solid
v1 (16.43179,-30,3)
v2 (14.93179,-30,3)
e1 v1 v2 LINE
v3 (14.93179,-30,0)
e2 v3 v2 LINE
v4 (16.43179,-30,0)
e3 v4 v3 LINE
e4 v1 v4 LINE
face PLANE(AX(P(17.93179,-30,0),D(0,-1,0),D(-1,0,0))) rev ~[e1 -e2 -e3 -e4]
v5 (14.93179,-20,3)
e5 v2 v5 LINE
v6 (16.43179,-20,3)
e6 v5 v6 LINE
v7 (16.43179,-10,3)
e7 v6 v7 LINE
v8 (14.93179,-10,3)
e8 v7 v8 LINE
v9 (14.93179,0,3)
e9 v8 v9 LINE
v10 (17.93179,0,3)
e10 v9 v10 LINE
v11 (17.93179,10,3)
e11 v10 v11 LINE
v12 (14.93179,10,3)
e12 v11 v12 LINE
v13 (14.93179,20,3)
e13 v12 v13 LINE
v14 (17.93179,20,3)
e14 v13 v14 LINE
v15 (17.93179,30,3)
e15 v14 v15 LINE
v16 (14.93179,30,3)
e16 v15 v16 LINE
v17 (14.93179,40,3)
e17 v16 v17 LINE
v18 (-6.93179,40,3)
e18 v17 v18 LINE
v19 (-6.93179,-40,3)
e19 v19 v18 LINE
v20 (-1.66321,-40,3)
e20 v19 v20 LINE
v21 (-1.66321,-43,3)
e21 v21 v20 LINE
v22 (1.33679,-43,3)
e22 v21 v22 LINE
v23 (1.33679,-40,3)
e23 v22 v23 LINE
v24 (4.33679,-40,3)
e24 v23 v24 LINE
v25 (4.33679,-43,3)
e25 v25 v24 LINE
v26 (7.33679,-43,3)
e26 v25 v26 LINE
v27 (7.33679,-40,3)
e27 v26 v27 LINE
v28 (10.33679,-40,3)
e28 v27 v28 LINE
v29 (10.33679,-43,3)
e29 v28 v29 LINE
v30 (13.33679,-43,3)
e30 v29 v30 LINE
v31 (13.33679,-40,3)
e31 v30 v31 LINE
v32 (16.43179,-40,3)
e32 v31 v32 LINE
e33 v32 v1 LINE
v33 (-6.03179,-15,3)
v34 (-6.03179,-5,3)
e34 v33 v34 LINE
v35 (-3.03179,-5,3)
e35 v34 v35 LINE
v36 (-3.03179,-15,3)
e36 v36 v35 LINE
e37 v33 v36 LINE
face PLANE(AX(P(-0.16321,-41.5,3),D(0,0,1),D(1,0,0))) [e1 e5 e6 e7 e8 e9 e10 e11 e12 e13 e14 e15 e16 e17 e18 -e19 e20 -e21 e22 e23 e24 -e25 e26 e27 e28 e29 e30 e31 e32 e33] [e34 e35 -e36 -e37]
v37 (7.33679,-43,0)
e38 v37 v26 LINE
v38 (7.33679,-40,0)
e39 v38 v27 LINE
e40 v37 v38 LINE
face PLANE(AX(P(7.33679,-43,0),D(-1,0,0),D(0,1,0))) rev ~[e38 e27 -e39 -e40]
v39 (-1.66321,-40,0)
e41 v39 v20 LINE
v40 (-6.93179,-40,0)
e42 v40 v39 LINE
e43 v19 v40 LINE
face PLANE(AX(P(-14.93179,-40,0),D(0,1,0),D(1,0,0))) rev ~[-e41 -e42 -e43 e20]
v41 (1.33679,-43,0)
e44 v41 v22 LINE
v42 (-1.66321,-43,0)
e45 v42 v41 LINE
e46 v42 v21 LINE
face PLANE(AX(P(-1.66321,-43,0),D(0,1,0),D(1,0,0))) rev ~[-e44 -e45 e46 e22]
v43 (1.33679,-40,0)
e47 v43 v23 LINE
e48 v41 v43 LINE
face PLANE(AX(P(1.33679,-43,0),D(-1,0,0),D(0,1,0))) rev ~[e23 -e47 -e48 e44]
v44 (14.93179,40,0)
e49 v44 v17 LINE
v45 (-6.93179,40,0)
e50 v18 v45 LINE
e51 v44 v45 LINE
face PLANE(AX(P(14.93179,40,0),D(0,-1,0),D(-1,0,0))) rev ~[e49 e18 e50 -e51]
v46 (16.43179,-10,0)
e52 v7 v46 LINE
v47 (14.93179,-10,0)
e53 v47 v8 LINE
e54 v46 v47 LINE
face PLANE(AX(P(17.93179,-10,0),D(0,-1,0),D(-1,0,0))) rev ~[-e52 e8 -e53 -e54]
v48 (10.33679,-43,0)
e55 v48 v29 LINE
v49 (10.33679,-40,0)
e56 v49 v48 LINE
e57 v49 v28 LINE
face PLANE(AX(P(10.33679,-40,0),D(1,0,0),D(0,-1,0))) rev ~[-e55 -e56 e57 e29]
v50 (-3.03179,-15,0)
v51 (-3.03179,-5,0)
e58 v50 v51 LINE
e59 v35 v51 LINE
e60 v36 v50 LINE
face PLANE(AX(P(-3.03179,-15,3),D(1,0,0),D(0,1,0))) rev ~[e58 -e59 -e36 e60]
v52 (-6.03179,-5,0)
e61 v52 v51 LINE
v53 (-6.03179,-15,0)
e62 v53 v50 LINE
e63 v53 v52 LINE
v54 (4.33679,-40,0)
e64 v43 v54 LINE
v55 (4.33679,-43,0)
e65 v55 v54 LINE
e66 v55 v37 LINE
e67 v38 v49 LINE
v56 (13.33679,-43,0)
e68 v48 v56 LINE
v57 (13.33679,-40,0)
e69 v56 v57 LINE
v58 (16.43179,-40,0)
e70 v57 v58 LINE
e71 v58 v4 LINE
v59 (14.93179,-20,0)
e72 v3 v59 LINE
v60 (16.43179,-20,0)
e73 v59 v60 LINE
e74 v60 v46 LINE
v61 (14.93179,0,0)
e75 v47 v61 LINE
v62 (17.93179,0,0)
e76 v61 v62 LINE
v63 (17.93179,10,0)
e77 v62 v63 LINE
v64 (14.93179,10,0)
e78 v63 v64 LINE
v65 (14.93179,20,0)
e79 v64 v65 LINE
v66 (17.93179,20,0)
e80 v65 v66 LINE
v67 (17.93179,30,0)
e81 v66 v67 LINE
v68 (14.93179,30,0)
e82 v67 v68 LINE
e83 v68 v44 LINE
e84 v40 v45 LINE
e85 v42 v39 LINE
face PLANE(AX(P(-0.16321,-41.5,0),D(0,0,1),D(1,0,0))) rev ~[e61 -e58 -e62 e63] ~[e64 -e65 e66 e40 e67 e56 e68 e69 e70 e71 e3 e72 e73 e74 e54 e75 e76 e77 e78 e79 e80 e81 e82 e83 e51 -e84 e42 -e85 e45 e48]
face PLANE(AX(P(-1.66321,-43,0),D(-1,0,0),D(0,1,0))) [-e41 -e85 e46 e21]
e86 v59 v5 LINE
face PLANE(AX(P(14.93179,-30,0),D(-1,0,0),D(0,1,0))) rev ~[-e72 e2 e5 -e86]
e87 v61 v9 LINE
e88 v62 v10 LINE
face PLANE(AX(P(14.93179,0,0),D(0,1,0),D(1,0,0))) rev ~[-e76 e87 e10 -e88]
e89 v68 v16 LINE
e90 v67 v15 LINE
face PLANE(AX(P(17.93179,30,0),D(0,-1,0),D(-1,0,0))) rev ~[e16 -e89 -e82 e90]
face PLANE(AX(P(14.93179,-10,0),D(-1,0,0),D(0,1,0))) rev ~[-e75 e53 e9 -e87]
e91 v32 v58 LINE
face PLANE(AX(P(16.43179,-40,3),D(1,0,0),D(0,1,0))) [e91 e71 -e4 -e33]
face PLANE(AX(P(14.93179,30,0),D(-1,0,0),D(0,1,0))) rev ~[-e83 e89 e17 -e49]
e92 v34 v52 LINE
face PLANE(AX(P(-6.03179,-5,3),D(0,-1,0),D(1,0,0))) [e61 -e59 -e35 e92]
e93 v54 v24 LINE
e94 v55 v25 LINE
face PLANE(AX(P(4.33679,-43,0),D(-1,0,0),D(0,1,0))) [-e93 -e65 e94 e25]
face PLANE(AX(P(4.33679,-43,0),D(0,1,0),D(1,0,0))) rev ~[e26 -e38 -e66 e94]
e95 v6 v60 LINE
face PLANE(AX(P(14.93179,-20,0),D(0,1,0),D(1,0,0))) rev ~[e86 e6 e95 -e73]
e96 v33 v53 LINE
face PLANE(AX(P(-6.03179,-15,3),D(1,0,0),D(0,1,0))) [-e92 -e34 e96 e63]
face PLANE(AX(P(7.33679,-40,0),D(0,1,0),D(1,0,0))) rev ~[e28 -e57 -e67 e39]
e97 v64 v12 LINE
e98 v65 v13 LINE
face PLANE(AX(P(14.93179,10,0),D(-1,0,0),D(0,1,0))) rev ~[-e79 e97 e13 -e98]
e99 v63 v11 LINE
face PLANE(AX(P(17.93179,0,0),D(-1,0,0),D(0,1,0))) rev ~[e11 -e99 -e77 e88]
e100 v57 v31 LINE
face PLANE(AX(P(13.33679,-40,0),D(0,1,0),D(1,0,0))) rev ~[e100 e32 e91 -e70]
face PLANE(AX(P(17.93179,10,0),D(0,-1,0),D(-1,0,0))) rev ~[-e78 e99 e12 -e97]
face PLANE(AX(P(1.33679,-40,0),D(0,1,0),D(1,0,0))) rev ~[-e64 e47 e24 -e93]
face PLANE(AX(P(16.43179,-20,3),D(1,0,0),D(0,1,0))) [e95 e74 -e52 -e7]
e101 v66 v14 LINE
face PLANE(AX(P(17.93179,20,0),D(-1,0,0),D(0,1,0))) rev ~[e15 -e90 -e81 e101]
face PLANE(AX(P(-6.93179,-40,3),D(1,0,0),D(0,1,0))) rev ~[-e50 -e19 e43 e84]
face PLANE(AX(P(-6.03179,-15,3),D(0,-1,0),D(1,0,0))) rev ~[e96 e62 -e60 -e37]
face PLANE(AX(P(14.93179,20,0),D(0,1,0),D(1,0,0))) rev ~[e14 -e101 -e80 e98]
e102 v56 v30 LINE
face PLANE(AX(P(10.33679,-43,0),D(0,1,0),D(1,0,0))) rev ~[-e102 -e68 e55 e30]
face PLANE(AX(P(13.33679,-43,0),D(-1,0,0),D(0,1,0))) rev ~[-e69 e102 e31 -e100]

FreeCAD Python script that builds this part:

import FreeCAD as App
import Part
import Sketcher
from FreeCAD import Vector

doc = App.newDocument("Part")
params = doc.addObject("Spreadsheet::Sheet", "Params")
for row, (alias, value) in enumerate([
    ("sketch1_width", "3 mm"),
    ("sketch1_height", "10 mm"),
    ("pad1_length", "3 mm"),
    ("sketch2_width", "8 mm"),
    ("sketch2_height", "80 mm"),
    ("pocket1_length", "25 mm"),
    ("sketch3_height", "10 mm"),
    ("sketch3_width", "1.5 mm"),
    ("pocket2_length", "25 mm"),
    ("sketch4_width", "3 mm"),
    ("sketch4_height", "10 mm"),
    ("pocket3_length", "25 mm"),
], start=1):
    params.set(f"A{row}", alias)
    params.set(f"B{row}", "=" + value)
    params.setAlias(f"B{row}", alias)

body = doc.addObject("PartDesign::Body", "Body")

sketch1 = doc.addObject("Sketcher::SketchObject", "Sketch")
body.addObject(sketch1)
sketch1.AttachmentSupport = (doc.XY_Plane, [""])
sketch1.MapMode = "FlatFace"
sketch1.addGeometry(Part.LineSegment(Vector(-1.7, -40, 0), Vector(-1.7, -43, 0)), False)
sketch1.addGeometry(Part.LineSegment(Vector(-1.7, -43, 0), Vector(1.3, -43, 0)), False)
sketch1.addGeometry(Part.LineSegment(Vector(1.3, -43, 0), Vector(1.3, -40, 0)), False)
sketch1.addGeometry(Part.LineSegment(Vector(1.3, -40, 0), Vector(4.3, -40, 0)), False)
sketch1.addGeometry(Part.LineSegment(Vector(4.3, -40, 0), Vector(4.3, -43, 0)), False)
sketch1.addGeometry(Part.LineSegment(Vector(4.3, -43, 0), Vector(7.3, -43, 0)), False)
sketch1.addGeometry(Part.LineSegment(Vector(7.3, -43, 0), Vector(7.3, -40, 0)), False)
sketch1.addGeometry(Part.LineSegment(Vector(7.3, -40, 0), Vector(10.3, -40, 0)), False)
sketch1.addGeometry(Part.LineSegment(Vector(10.3, -40, 0), Vector(10.3, -43, 0)), False)
sketch1.addGeometry(Part.LineSegment(Vector(10.3, -43, 0), Vector(13.3, -43, 0)), False)
sketch1.addGeometry(Part.LineSegment(Vector(13.3, -43, 0), Vector(13.3, -40, 0)), False)
sketch1.addGeometry(Part.LineSegment(Vector(13.3, -40, 0), Vector(17.9, -40, 0)), False)
sketch1.addGeometry(Part.LineSegment(Vector(17.9, -40, 0), Vector(17.9, -30, 0)), False)
sketch1.addGeometry(Part.LineSegment(Vector(17.9, -30, 0), Vector(14.9, -30, 0)), False)
sketch1.addGeometry(Part.LineSegment(Vector(14.9, -30, 0), Vector(14.9, -20, 0)), False)
sketch1.addGeometry(Part.LineSegment(Vector(14.9, -20, 0), Vector(17.9, -20, 0)), False)
sketch1.addGeometry(Part.LineSegment(Vector(17.9, -20, 0), Vector(17.9, -10, 0)), False)
sketch1.addGeometry(Part.LineSegment(Vector(17.9, -10, 0), Vector(14.9, -10, 0)), False)
sketch1.addGeometry(Part.LineSegment(Vector(14.9, -10, 0), Vector(14.9, 0, 0)), False)
sketch1.addGeometry(Part.LineSegment(Vector(14.9, 0, 0), Vector(17.9, 0, 0)), False)
sketch1.addGeometry(Part.LineSegment(Vector(17.9, 0, 0), Vector(17.9, 10, 0)), False)
sketch1.addGeometry(Part.LineSegment(Vector(17.9, 10, 0), Vector(14.9, 10, 0)), False)
sketch1.addGeometry(Part.LineSegment(Vector(14.9, 10, 0), Vector(14.9, 20, 0)), False)
sketch1.addGeometry(Part.LineSegment(Vector(14.9, 20, 0), Vector(17.9, 20, 0)), False)
sketch1.addGeometry(Part.LineSegment(Vector(17.9, 20, 0), Vector(17.9, 30, 0)), False)
sketch1.addGeometry(Part.LineSegment(Vector(17.9, 30, 0), Vector(14.9, 30, 0)), False)
sketch1.addGeometry(Part.LineSegment(Vector(14.9, 30, 0), Vector(14.9, 40, 0)), False)
sketch1.addGeometry(Part.LineSegment(Vector(14.9, 40, 0), Vector(-14.9, 40, 0)), False)
sketch1.addGeometry(Part.LineSegment(Vector(-14.9, 40, 0), Vector(-14.9, -40, 0)), False)
sketch1.addGeometry(Part.LineSegment(Vector(-14.9, -40, 0), Vector(-1.7, -40, 0)), False)
sketch1.addConstraint(Sketcher.Constraint("Coincident", 0, 2, 1, 1))
sketch1.addConstraint(Sketcher.Constraint("Coincident", 1, 2, 2, 1))
sketch1.addConstraint(Sketcher.Constraint("Coincident", 2, 2, 3, 1))
sketch1.addConstraint(Sketcher.Constraint("Coincident", 3, 2, 4, 1))
sketch1.addConstraint(Sketcher.Constraint("Coincident", 4, 2, 5, 1))
sketch1.addConstraint(Sketcher.Constraint("Coincident", 5, 2, 6, 1))
sketch1.addConstraint(Sketcher.Constraint("Coincident", 6, 2, 7, 1))
sketch1.addConstraint(Sketcher.Constraint("Coincident", 7, 2, 8, 1))
sketch1.addConstraint(Sketcher.Constraint("Coincident", 8, 2, 9, 1))
sketch1.addConstraint(Sketcher.Constraint("Coincident", 9, 2, 10, 1))
sketch1.addConstraint(Sketcher.Constraint("Coincident", 10, 2, 11, 1))
sketch1.addConstraint(Sketcher.Constraint("Coincident", 11, 2, 12, 1))
sketch1.addConstraint(Sketcher.Constraint("Coincident", 12, 2, 13, 1))
sketch1.addConstraint(Sketcher.Constraint("Coincident", 13, 2, 14, 1))
sketch1.addConstraint(Sketcher.Constraint("Coincident", 14, 2, 15, 1))
sketch1.addConstraint(Sketcher.Constraint("Coincident", 15, 2, 16, 1))
sketch1.addConstraint(Sketcher.Constraint("Coincident", 16, 2, 17, 1))
sketch1.addConstraint(Sketcher.Constraint("Coincident", 17, 2, 18, 1))
sketch1.addConstraint(Sketcher.Constraint("Coincident", 18, 2, 19, 1))
sketch1.addConstraint(Sketcher.Constraint("Coincident", 19, 2, 20, 1))
sketch1.addConstraint(Sketcher.Constraint("Coincident", 20, 2, 21, 1))
sketch1.addConstraint(Sketcher.Constraint("Coincident", 21, 2, 22, 1))
sketch1.addConstraint(Sketcher.Constraint("Coincident", 22, 2, 23, 1))
sketch1.addConstraint(Sketcher.Constraint("Coincident", 23, 2, 24, 1))
sketch1.addConstraint(Sketcher.Constraint("Coincident", 24, 2, 25, 1))
sketch1.addConstraint(Sketcher.Constraint("Coincident", 25, 2, 26, 1))
sketch1.addConstraint(Sketcher.Constraint("Coincident", 26, 2, 27, 1))
sketch1.addConstraint(Sketcher.Constraint("Coincident", 27, 2, 28, 1))
sketch1.addConstraint(Sketcher.Constraint("Coincident", 28, 2, 29, 1))
sketch1.addConstraint(Sketcher.Constraint("Coincident", 29, 2, 0, 1))
sketch1.addConstraint(Sketcher.Constraint("Vertical", 0))
sketch1.addConstraint(Sketcher.Constraint("Horizontal", 1))
sketch1.addConstraint(Sketcher.Constraint("Vertical", 2))
sketch1.addConstraint(Sketcher.Constraint("Horizontal", 3))
sketch1.addConstraint(Sketcher.Constraint("Vertical", 4))
sketch1.addConstraint(Sketcher.Constraint("Horizontal", 5))
sketch1.addConstraint(Sketcher.Constraint("Vertical", 6))
sketch1.addConstraint(Sketcher.Constraint("Horizontal", 7))
sketch1.addConstraint(Sketcher.Constraint("Vertical", 8))
sketch1.addConstraint(Sketcher.Constraint("Horizontal", 9))
sketch1.addConstraint(Sketcher.Constraint("Vertical", 10))
sketch1.addConstraint(Sketcher.Constraint("Horizontal", 11))
sketch1.addConstraint(Sketcher.Constraint("Vertical", 12))
sketch1.addConstraint(Sketcher.Constraint("Horizontal", 13))
sketch1.addConstraint(Sketcher.Constraint("Vertical", 14))
sketch1.addConstraint(Sketcher.Constraint("Horizontal", 15))
sketch1.addConstraint(Sketcher.Constraint("Vertical", 16))
sketch1.addConstraint(Sketcher.Constraint("Horizontal", 17))
sketch1.addConstraint(Sketcher.Constraint("Vertical", 18))
sketch1.addConstraint(Sketcher.Constraint("Horizontal", 19))
sketch1.addConstraint(Sketcher.Constraint("Vertical", 20))
sketch1.addConstraint(Sketcher.Constraint("Horizontal", 21))
sketch1.addConstraint(Sketcher.Constraint("Vertical", 22))
sketch1.addConstraint(Sketcher.Constraint("Horizontal", 23))
sketch1.addConstraint(Sketcher.Constraint("Vertical", 24))
sketch1.addConstraint(Sketcher.Constraint("Horizontal", 25))
sketch1.addConstraint(Sketcher.Constraint("Vertical", 26))
sketch1.addConstraint(Sketcher.Constraint("Horizontal", 27))
sketch1.addConstraint(Sketcher.Constraint("Vertical", 28))
sketch1.addConstraint(Sketcher.Constraint("Horizontal", 29))
sketch1.addConstraint(Sketcher.Constraint("Symmetric", 26, 2, 28, 2, -1, 1))
sketch1.addConstraint(Sketcher.Constraint("Symmetric", 16, 2, 20, 2, -1))
sketch1.addConstraint(Sketcher.Constraint("Symmetric", 14, 2, 22, 2, -1))
sketch1.addConstraint(Sketcher.Constraint("Symmetric", 12, 2, 24, 2, -1))
sketch1.addConstraint(Sketcher.Constraint("PointOnObject", 18, 2, -1))
sketch1.addConstraint(Sketcher.Constraint("Horizontal", 1, 2, 4, 2))
sketch1.addConstraint(Sketcher.Constraint("Horizontal", 3, 2, 6, 2))
sketch1.addConstraint(Sketcher.Constraint("Horizontal", 5, 2, 8, 2))
sketch1.addConstraint(Sketcher.Constraint("Horizontal", 7, 2, 10, 2))
sketch1.addConstraint(Sketcher.Constraint("Horizontal", 11, 2, 28, 2))
sketch1.addConstraint(Sketcher.Constraint("Vertical", 12, 2, 15, 2))
sketch1.addConstraint(Sketcher.Constraint("Vertical", 14, 2, 17, 2))
sketch1.addConstraint(Sketcher.Constraint("Vertical", 22, 2, 25, 2))
sketch1.addConstraint(Sketcher.Constraint("Equal", 1, 3))
sketch1.addConstraint(Sketcher.Constraint("Equal", 3, 5))
sketch1.addConstraint(Sketcher.Constraint("Equal", 5, 7))
sketch1.addConstraint(Sketcher.Constraint("Equal", 7, 9))
sketch1.addConstraint(Sketcher.Constraint("Equal", 9, 13))
sketch1.addConstraint(Sketcher.Constraint("Equal", 25, 0))
sketch1.addConstraint(Sketcher.Constraint("Equal", 12, 14))
sketch1.addConstraint(Sketcher.Constraint("Equal", 14, 16))
sketch1.addConstraint(Sketcher.Constraint("Equal", 16, 18))
sketch1.addConstraint(Sketcher.Constraint("DistanceX", 1, 1, 1, 2, 3.0))
sketch1.addConstraint(Sketcher.Constraint("DistanceY", 12, 1, 12, 2, 10.0))
sketch1.addConstraint(Sketcher.Constraint("DistanceX", 11, 1, 11, 2, 4.595))
sketch1.addConstraint(Sketcher.Constraint("DistanceX", 27, 2, 27, 1, 29.86358))
sketch1.setExpression("Constraints[82]", "Params.sketch1_width")
sketch1.setExpression("Constraints[83]", "Params.sketch1_height")
pad1 = doc.addObject("PartDesign::Pad", "Pad")
body.addObject(pad1)
pad1.Profile = sketch1
pad1.setExpression("Length", "Params.pad1_length")

sketch2 = doc.addObject("Sketcher::SketchObject", "Sketch001")
body.addObject(sketch2)
sketch2.AttachmentSupport = (doc.XY_Plane, [""])
sketch2.MapMode = "FlatFace"
sketch2.AttachmentOffset = App.Placement(Vector(0, 0, 3), App.Rotation())
sketch2.addGeometry(Part.LineSegment(Vector(-15, 40, 0), Vector(-15, -40, 0)), False)
sketch2.addGeometry(Part.LineSegment(Vector(-15, -40, 0), Vector(-7, -40, 0)), False)
sketch2.addGeometry(Part.LineSegment(Vector(-7, -40, 0), Vector(-7, 40, 0)), False)
sketch2.addGeometry(Part.LineSegment(Vector(-7, 40, 0), Vector(-15, 40, 0)), False)
sketch2.addConstraint(Sketcher.Constraint("Coincident", 0, 2, 1, 1))
sketch2.addConstraint(Sketcher.Constraint("Coincident", 1, 2, 2, 1))
sketch2.addConstraint(Sketcher.Constraint("Coincident", 2, 2, 3, 1))
sketch2.addConstraint(Sketcher.Constraint("Coincident", 3, 2, 0, 1))
sketch2.addConstraint(Sketcher.Constraint("Vertical", 0))
sketch2.addConstraint(Sketcher.Constraint("Horizontal", 1))
sketch2.addConstraint(Sketcher.Constraint("Vertical", 2))
sketch2.addConstraint(Sketcher.Constraint("Horizontal", 3))
sketch2.addConstraint(Sketcher.Constraint("DistanceX", 1, 1, 1, 2, 8.0))
sketch2.addConstraint(Sketcher.Constraint("DistanceY", 0, 2, 0, 1, 80.0))
sketch2.addConstraint(Sketcher.Constraint("DistanceY", 0, 2, -1, 1, 40.0))
sketch2.addConstraint(Sketcher.Constraint("DistanceX", 0, 2, -1, 1, 14.93179))
sketch2.setExpression("Constraints[8]", "Params.sketch2_width")
sketch2.setExpression("Constraints[9]", "Params.sketch2_height")
pocket1 = doc.addObject("PartDesign::Pocket", "Pocket")
body.addObject(pocket1)
pocket1.Profile = sketch2
pocket1.setExpression("Length", "Params.pocket1_length")

sketch3 = doc.addObject("Sketcher::SketchObject", "Sketch002")
body.addObject(sketch3)
sketch3.AttachmentSupport = (doc.XY_Plane, [""])
sketch3.MapMode = "FlatFace"
sketch3.AttachmentOffset = App.Placement(Vector(0, 0, 3), App.Rotation())
sketch3.addGeometry(Part.LineSegment(Vector(16.4, -30, 0), Vector(16.4, -40, 0)), False)
sketch3.addGeometry(Part.LineSegment(Vector(16.4, -40, 0), Vector(17.9, -40, 0)), False)
sketch3.addGeometry(Part.LineSegment(Vector(17.9, -40, 0), Vector(17.9, -30, 0)), False)
sketch3.addGeometry(Part.LineSegment(Vector(17.9, -30, 0), Vector(16.4, -30, 0)), False)
sketch3.addGeometry(Part.LineSegment(Vector(16.4, -10, 0), Vector(16.4, -20, 0)), False)
sketch3.addGeometry(Part.LineSegment(Vector(16.4, -20, 0), Vector(17.9, -20, 0)), False)
sketch3.addGeometry(Part.LineSegment(Vector(17.9, -20, 0), Vector(17.9, -10, 0)), False)
sketch3.addGeometry(Part.LineSegment(Vector(17.9, -10, 0), Vector(16.4, -10, 0)), False)
sketch3.addConstraint(Sketcher.Constraint("Coincident", 0, 2, 1, 1))
sketch3.addConstraint(Sketcher.Constraint("Coincident", 1, 2, 2, 1))
sketch3.addConstraint(Sketcher.Constraint("Coincident", 2, 2, 3, 1))
sketch3.addConstraint(Sketcher.Constraint("Coincident", 3, 2, 0, 1))
sketch3.addConstraint(Sketcher.Constraint("Coincident", 4, 2, 5, 1))
sketch3.addConstraint(Sketcher.Constraint("Coincident", 5, 2, 6, 1))
sketch3.addConstraint(Sketcher.Constraint("Coincident", 6, 2, 7, 1))
sketch3.addConstraint(Sketcher.Constraint("Coincident", 7, 2, 4, 1))
sketch3.addConstraint(Sketcher.Constraint("Vertical", 0))
sketch3.addConstraint(Sketcher.Constraint("Horizontal", 1))
sketch3.addConstraint(Sketcher.Constraint("Vertical", 2))
sketch3.addConstraint(Sketcher.Constraint("Horizontal", 3))
sketch3.addConstraint(Sketcher.Constraint("Vertical", 4))
sketch3.addConstraint(Sketcher.Constraint("Horizontal", 5))
sketch3.addConstraint(Sketcher.Constraint("Vertical", 6))
sketch3.addConstraint(Sketcher.Constraint("Horizontal", 7))
sketch3.addConstraint(Sketcher.Constraint("Vertical", 3, 2, 4, 2))
sketch3.addConstraint(Sketcher.Constraint("Vertical", 2, 2, 5, 2))
sketch3.addConstraint(Sketcher.Constraint("Equal", 2, 4))
sketch3.addConstraint(Sketcher.Constraint("DistanceY", 0, 2, 0, 1, 10.0))
sketch3.addConstraint(Sketcher.Constraint("DistanceX", 1, 1, 1, 2, 1.5))
sketch3.addConstraint(Sketcher.Constraint("DistanceY", 0, 2, -1, 1, 40.0))
sketch3.addConstraint(Sketcher.Constraint("DistanceY", 4, 2, -1, 1, 20.0))
sketch3.addConstraint(Sketcher.Constraint("DistanceX", -1, 1, 0, 2, 16.43179))
sketch3.setExpression("Constraints[19]", "Params.sketch3_height")
sketch3.setExpression("Constraints[20]", "Params.sketch3_width")
pocket2 = doc.addObject("PartDesign::Pocket", "Pocket001")
body.addObject(pocket2)
pocket2.Profile = sketch3
pocket2.setExpression("Length", "Params.pocket2_length")

sketch4 = doc.addObject("Sketcher::SketchObject", "Sketch003")
body.addObject(sketch4)
sketch4.AttachmentSupport = (doc.XY_Plane, [""])
sketch4.MapMode = "FlatFace"
sketch4.AttachmentOffset = App.Placement(Vector(0, 0, 3), App.Rotation())
sketch4.addGeometry(Part.LineSegment(Vector(-6, -5, 0), Vector(-6, -15, 0)), False)
sketch4.addGeometry(Part.LineSegment(Vector(-6, -15, 0), Vector(-3, -15, 0)), False)
sketch4.addGeometry(Part.LineSegment(Vector(-3, -15, 0), Vector(-3, -5, 0)), False)
sketch4.addGeometry(Part.LineSegment(Vector(-3, -5, 0), Vector(-6, -5, 0)), False)
sketch4.addConstraint(Sketcher.Constraint("Coincident", 0, 2, 1, 1))
sketch4.addConstraint(Sketcher.Constraint("Coincident", 1, 2, 2, 1))
sketch4.addConstraint(Sketcher.Constraint("Coincident", 2, 2, 3, 1))
sketch4.addConstraint(Sketcher.Constraint("Coincident", 3, 2, 0, 1))
sketch4.addConstraint(Sketcher.Constraint("Vertical", 0))
sketch4.addConstraint(Sketcher.Constraint("Horizontal", 1))
sketch4.addConstraint(Sketcher.Constraint("Vertical", 2))
sketch4.addConstraint(Sketcher.Constraint("Horizontal", 3))
sketch4.addConstraint(Sketcher.Constraint("DistanceX", 1, 1, 1, 2, 3.0))
sketch4.addConstraint(Sketcher.Constraint("DistanceY", 0, 2, 0, 1, 10.0))
sketch4.addConstraint(Sketcher.Constraint("DistanceY", 0, 2, -1, 1, 15.0))
sketch4.addConstraint(Sketcher.Constraint("DistanceX", 0, 2, -1, 1, 6.03179))
sketch4.setExpression("Constraints[8]", "Params.sketch4_width")
sketch4.setExpression("Constraints[9]", "Params.sketch4_height")
pocket3 = doc.addObject("PartDesign::Pocket", "Pocket002")
body.addObject(pocket3)
pocket3.Profile = sketch4
pocket3.setExpression("Length", "Params.pocket3_length")

doc.recompute()
